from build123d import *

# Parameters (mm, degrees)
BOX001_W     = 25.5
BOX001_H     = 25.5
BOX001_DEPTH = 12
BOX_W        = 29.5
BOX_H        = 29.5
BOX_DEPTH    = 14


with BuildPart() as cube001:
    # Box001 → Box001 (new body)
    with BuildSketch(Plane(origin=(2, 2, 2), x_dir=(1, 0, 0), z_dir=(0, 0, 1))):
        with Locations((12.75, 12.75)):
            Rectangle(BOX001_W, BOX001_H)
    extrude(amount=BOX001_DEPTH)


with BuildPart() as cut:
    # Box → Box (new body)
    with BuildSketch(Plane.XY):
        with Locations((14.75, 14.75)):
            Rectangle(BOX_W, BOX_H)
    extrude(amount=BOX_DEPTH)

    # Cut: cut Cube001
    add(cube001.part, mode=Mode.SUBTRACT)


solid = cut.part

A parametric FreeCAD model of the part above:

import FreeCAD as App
import Part
import Sketcher

V = App.Vector
Q = App.Units.Quantity

doc = App.newDocument("Part")
params = doc.addObject("Spreadsheet::Sheet", "Params")
for row, (alias, value) in enumerate([
    ("sketch1_width", "25.5 mm"),
    ("pad1_length", "12 mm"),
    ("sketch2_width", "29.5 mm"),
    ("pad2_length", "14 mm"),
], start=1):
    params.set(f"A{row}", alias)
    params.set(f"B{row}", "=" + value)
    params.setAlias(f"B{row}", alias)

body = doc.addObject("PartDesign::Body", "Body")

sketch1 = body.newObject("Sketcher::SketchObject", "Sketch")
sketch1.AttachmentSupport = (doc.getObject("XY_Plane"), [""])
sketch1.MapMode = "FlatFace"
sketch1.AttachmentOffset = App.Placement(V(0, 0, 2), App.Rotation())
sketch1.addGeometry(Part.LineSegment(V(2, 27.5, 0), V(2, 2, 0)), False)
sketch1.addGeometry(Part.LineSegment(V(2, 2, 0), V(27.5, 2, 0)), False)
sketch1.addGeometry(Part.LineSegment(V(27.5, 2, 0), V(27.5, 27.5, 0)), False)
sketch1.addGeometry(Part.LineSegment(V(27.5, 27.5, 0), V(2, 27.5, 0)), False)
sketch1.addConstraint(Sketcher.Constraint("Coincident", 0, 2, 1, 1))
sketch1.addConstraint(Sketcher.Constraint("Coincident", 1, 2, 2, 1))
sketch1.addConstraint(Sketcher.Constraint("Coincident", 2, 2, 3, 1))
sketch1.addConstraint(Sketcher.Constraint("Coincident", 3, 2, 0, 1))
sketch1.addConstraint(Sketcher.Constraint("Vertical", 0))
sketch1.addConstraint(Sketcher.Constraint("Horizontal", 1))
sketch1.addConstraint(Sketcher.Constraint("Vertical", 2))
sketch1.addConstraint(Sketcher.Constraint("Horizontal", 3))
sketch1.addConstraint(Sketcher.Constraint("Equal", 3, 0))
sketch1.addConstraint(Sketcher.Constraint("DistanceX", 1, 1, 1, 2, Q("25.5 mm")))
sketch1.addConstraint(Sketcher.Constraint("DistanceX", -1, 1, 0, 2, Q("2 mm")))
sketch1.addConstraint(Sketcher.Constraint("DistanceY", -1, 1, 0, 2, Q("2 mm")))
sketch1.setExpression("Constraints[9]", "Params.sketch1_width")
pad1 = body.newObject("PartDesign::Pad", "Pad")
pad1.Profile = sketch1
pad1.setExpression("Length", "Params.pad1_length")
body2 = doc.addObject("PartDesign::Body", "Body001")

sketch2 = body2.newObject("Sketcher::SketchObject", "Sketch001")
sketch2.AttachmentSupport = (doc.getObject("XY_Plane001"), [""])
sketch2.MapMode = "FlatFace"
sketch2.addGeometry(Part.LineSegment(V(0, 29.5, 0), V(0, 0, 0)), False)
sketch2.addGeometry(Part.LineSegment(V(0, 0, 0), V(29.5, 0, 0)), False)
sketch2.addGeometry(Part.LineSegment(V(29.5, 0, 0), V(29.5, 29.5, 0)), False)
sketch2.addGeometry(Part.LineSegment(V(29.5, 29.5, 0), V(0, 29.5, 0)), False)
sketch2.addConstraint(Sketcher.Constraint("Coincident", 0, 2, 1, 1))
sketch2.addConstraint(Sketcher.Constraint("Coincident", 1, 2, 2, 1))
sketch2.addConstraint(Sketcher.Constraint("Coincident", 2, 2, 3, 1))
sketch2.addConstraint(Sketcher.Constraint("Coincident", 3, 2, 0, 1))
sketch2.addConstraint(Sketcher.Constraint("Vertical", 0))
sketch2.addConstraint(Sketcher.Constraint("Horizontal", 1))
sketch2.addConstraint(Sketcher.Constraint("Vertical", 2))
sketch2.addConstraint(Sketcher.Constraint("Horizontal", 3))
sketch2.addConstraint(Sketcher.Constraint("Coincident", 0, 2, -1, 1))
sketch2.addConstraint(Sketcher.Constraint("Equal", 3, 0))
sketch2.addConstraint(Sketcher.Constraint("DistanceX", 1, 1, 1, 2, Q("29.5 mm")))
sketch2.setExpression("Constraints[10]", "Params.sketch2_width")
pad2 = body2.newObject("PartDesign::Pad", "Pad001")
pad2.Profile = sketch2
pad2.setExpression("Length", "Params.pad2_length")
doc.recompute()

boolean = body2.newObject("PartDesign::Boolean", "Boolean")
boolean.Type = "Cut"
boolean.addObjects([body])

doc.recompute()
